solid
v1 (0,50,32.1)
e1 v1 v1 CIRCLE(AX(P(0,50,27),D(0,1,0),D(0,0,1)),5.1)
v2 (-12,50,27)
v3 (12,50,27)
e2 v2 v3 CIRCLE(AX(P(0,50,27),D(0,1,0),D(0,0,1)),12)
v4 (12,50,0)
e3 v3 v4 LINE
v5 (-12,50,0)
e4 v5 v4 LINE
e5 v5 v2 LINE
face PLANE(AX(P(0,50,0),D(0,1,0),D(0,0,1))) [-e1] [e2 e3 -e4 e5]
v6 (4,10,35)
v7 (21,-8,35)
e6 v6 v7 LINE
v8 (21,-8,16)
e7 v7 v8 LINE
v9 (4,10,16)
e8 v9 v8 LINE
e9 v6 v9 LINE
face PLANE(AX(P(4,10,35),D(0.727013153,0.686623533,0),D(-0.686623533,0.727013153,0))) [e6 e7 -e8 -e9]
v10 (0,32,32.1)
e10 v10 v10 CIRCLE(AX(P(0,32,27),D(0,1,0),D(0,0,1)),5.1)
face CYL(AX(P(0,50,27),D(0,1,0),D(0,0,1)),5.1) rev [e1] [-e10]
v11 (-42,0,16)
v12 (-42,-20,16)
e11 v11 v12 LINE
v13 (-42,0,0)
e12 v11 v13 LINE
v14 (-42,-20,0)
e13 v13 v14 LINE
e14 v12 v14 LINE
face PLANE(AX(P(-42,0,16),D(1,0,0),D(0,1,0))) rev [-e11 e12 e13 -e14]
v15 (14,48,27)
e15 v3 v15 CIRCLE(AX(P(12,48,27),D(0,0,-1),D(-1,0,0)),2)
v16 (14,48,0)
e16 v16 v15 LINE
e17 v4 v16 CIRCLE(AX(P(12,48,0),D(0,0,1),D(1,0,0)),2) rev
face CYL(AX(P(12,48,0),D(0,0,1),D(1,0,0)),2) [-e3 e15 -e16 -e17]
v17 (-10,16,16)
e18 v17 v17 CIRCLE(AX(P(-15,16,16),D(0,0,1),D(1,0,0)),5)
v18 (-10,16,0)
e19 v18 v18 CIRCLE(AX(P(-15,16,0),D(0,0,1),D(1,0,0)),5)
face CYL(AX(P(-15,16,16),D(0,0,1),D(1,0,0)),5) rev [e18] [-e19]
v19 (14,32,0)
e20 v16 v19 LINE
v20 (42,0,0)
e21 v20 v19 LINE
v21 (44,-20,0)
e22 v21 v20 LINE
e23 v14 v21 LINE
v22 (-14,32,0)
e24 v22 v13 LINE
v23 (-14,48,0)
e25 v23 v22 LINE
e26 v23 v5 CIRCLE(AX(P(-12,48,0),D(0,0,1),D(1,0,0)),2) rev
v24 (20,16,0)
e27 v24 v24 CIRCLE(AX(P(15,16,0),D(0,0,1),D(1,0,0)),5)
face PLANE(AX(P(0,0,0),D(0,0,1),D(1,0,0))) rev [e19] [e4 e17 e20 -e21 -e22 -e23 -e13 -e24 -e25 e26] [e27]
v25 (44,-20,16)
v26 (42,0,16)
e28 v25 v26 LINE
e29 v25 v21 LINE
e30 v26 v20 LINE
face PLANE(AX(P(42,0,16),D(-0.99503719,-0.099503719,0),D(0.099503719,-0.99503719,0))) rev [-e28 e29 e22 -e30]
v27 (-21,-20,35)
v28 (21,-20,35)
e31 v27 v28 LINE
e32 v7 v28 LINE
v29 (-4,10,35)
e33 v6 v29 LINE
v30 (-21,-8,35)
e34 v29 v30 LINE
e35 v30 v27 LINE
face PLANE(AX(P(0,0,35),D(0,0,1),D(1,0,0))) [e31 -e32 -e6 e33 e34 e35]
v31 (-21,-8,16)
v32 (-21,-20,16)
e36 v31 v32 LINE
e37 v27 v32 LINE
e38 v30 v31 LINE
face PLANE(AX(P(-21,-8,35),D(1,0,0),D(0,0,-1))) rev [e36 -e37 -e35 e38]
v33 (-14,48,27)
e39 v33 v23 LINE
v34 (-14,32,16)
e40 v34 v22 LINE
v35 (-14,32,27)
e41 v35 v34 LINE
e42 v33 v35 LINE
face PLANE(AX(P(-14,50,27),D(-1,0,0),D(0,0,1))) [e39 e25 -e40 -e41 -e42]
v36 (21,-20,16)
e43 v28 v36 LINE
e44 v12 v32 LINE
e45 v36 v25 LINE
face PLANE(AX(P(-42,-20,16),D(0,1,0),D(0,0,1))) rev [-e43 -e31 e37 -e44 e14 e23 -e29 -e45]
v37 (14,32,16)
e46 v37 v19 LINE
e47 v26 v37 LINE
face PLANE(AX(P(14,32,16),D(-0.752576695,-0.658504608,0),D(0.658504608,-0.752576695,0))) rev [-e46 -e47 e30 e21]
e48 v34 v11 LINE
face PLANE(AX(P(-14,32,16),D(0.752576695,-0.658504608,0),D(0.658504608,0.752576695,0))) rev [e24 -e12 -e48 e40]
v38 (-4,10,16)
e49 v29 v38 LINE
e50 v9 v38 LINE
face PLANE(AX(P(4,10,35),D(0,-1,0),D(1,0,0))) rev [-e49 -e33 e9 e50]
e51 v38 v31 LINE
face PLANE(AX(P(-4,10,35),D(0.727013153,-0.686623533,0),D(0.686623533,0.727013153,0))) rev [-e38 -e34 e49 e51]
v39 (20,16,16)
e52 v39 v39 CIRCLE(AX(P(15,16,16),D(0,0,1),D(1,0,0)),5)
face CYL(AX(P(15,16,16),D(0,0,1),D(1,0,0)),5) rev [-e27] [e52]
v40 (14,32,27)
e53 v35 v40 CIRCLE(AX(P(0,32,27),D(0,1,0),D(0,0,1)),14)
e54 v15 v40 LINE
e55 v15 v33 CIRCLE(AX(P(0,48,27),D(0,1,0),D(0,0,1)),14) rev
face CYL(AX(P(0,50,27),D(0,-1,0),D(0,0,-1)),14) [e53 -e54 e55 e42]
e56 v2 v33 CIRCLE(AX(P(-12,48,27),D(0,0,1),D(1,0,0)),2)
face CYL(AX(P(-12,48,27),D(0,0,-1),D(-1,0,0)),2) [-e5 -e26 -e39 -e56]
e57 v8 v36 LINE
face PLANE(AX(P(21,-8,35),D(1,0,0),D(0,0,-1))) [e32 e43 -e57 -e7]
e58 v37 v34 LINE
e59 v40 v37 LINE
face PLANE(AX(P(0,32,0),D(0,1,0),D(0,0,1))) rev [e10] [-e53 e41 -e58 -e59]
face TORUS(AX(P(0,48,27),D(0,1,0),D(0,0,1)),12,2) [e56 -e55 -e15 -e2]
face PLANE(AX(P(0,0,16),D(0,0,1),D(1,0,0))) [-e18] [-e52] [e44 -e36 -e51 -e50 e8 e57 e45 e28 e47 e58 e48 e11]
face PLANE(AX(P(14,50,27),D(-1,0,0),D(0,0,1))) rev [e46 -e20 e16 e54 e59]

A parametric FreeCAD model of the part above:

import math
import FreeCAD as App
import Part
import Sketcher

V = App.Vector
Q = App.Units.Quantity


def edges_at(feature, points):
    """Names of the edges that pass closest to the given points."""
    edges = feature.Shape.Edges
    near = lambda p: min(range(len(edges)), key=lambda i: edges[i].distToShape(Part.Vertex(*p))[0])
    return sorted({f"Edge{near(p) + 1}" for p in points})


def add_polygon(sketch, points):
    """Adds a closed chain of lines whose ends are joined by coincident constraints."""
    first, n = sketch.GeometryCount, len(points)
    for a, b in zip(points, points[1:] + points[:1]):
        sketch.addGeometry(Part.LineSegment(App.Vector(*a, 0), App.Vector(*b, 0)), False)
    for i in range(n):
        sketch.addConstraint(Sketcher.Constraint("Coincident", first + i, 2, first + (i + 1) % n, 1))

doc = App.newDocument("Part")
params = doc.addObject("Spreadsheet::Sheet", "Params")
for row, (alias, value) in enumerate([
    ("sketch1_width", "28 mm"),
    ("sketch1_width2", "86 mm"),
    ("sketch1_height", "20 mm"),
    ("pad1_length", "16 mm"),
    ("sketch2_width", "8 mm"),
    ("sketch2_width2", "42 mm"),
    ("sketch2_height", "12 mm"),
    ("pad2_length", "19 mm"),
    ("sketch3_radius", "14 mm"),
    ("sketch3_height", "27 mm"),
    ("pad3_length", "18 mm"),
    ("fillet_radius", "2 mm"),
    ("sketch4_diameter", "10.2 mm"),
    ("hole_diameter", "10.2 mm"),
    ("hole_depth", "18 mm"),
    ("sketch5_diameter", "10 mm"),
    ("hole2_diameter", "10 mm"),
], start=1):
    params.set(f"A{row}", alias)
    params.set(f"B{row}", "=" + value)
    params.setAlias(f"B{row}", alias)

body = doc.addObject("PartDesign::Body", "Body")

sketch1 = doc.addObject("Sketcher::SketchObject", "Sketch")
body.addObject(sketch1)
sketch1.AttachmentSupport = (doc.XY_Plane, [""])
sketch1.MapMode = "FlatFace"
add_polygon(sketch1, [(14, 32), (-14, 32), (-42, 0), (-42, -20), (44, -20), (42, 0)])
sketch1.addConstraint([
    Sketcher.Constraint("Horizontal", 0),
    Sketcher.Constraint("Vertical", 2),
    Sketcher.Constraint("Horizontal", 3),
    Sketcher.Constraint("Symmetric", 1, 2, 4, 2, -1, 1),
    Sketcher.Constraint("PointOnObject", 1, 2, -1),
    Sketcher.Constraint("Equal", 1, 5),
    Sketcher.Constraint("DistanceX", 0, 2, 0, 1, Q("28 mm")),
    Sketcher.Constraint("DistanceX", 3, 1, 3, 2, Q("86 mm")),
    Sketcher.Constraint("DistanceY", 2, 2, 2, 1, Q("20 mm")),
    Sketcher.Constraint("DistanceY", -1, 1, 0, 2, Q("32 mm")),
    Sketcher.Constraint("DistanceX", 1, 2, -1, 1, Q("42 mm")),
])
sketch1.setExpression("Constraints[12]", "Params.sketch1_width")
sketch1.setExpression("Constraints[13]", "Params.sketch1_width2")
sketch1.setExpression("Constraints[14]", "Params.sketch1_height")
pad1 = doc.addObject("PartDesign::Pad", "Pad")
body.addObject(pad1)
pad1.Profile = sketch1
pad1.setExpression("Length", "Params.pad1_length")

sketch2 = doc.addObject("Sketcher::SketchObject", "Sketch001")
body.addObject(sketch2)
sketch2.AttachmentSupport = (doc.XY_Plane, [""])
sketch2.MapMode = "FlatFace"
sketch2.AttachmentOffset = App.Placement(V(0, 0, 16), App.Rotation())
add_polygon(sketch2, [(4, 10), (-4, 10), (-21, -8), (-21, -20), (21, -20), (21, -8)])
sketch2.addConstraint([
    Sketcher.Constraint("Horizontal", 0),
    Sketcher.Constraint("Vertical", 2),
    Sketcher.Constraint("Horizontal", 3),
    Sketcher.Constraint("Vertical", 4),
    Sketcher.Constraint("Symmetric", 1, 2, 4, 2, -2),
    Sketcher.Constraint("Equal", 1, 5),
    Sketcher.Constraint("DistanceX", 0, 2, 0, 1, Q("8 mm")),
    Sketcher.Constraint("DistanceX", 3, 1, 3, 2, Q("42 mm")),
    Sketcher.Constraint("DistanceY", 2, 2, 2, 1, Q("12 mm")),
    Sketcher.Constraint("DistanceY", -1, 1, 0, 2, Q("10 mm")),
    Sketcher.Constraint("DistanceY", 1, 2, -1, 1, Q("8 mm")),
])
sketch2.setExpression("Constraints[12]", "Params.sketch2_width")
sketch2.setExpression("Constraints[13]", "Params.sketch2_width2")
sketch2.setExpression("Constraints[14]", "Params.sketch2_height")
pad2 = doc.addObject("PartDesign::Pad", "Pad001")
body.addObject(pad2)
pad2.Profile = sketch2
pad2.setExpression("Length", "Params.pad2_length")

sketch3 = doc.addObject("Sketcher::SketchObject", "Sketch002")
body.addObject(sketch3)
sketch3.AttachmentSupport = (doc.XZ_Plane, [""])
sketch3.MapMode = "FlatFace"
sketch3.AttachmentOffset = App.Placement(V(0, 0, -32), App.Rotation())
sketch3.addGeometry([
    Part.LineSegment(V(-14, 0, 0), V(-14, 27, 0)),
    Part.ArcOfCircle(Part.Circle(V(0, 27, 0), V(0, 0, 1), 14), math.radians(0), math.radians(180)),
    Part.LineSegment(V(14, 27, 0), V(14, 0, 0)),
    Part.LineSegment(V(14, 0, 0), V(-14, 0, 0)),
], False)
sketch3.addConstraint([
    Sketcher.Constraint("Tangent", 0, 2, 1, 2),
    Sketcher.Constraint("Tangent", 1, 1, 2, 1),
    Sketcher.Constraint("Coincident", 2, 2, 3, 1),
    Sketcher.Constraint("Coincident", 3, 2, 0, 1),
    Sketcher.Constraint("Vertical", 0),
    Sketcher.Constraint("Vertical", 2),
    Sketcher.Constraint("Horizontal", 3),
    Sketcher.Constraint("Symmetric", 2, 2, 3, 2, -1, 1),
    Sketcher.Constraint("Radius", 1, Q("14 mm")),
    Sketcher.Constraint("DistanceY", 0, 1, 0, 2, Q("27 mm")),
])
sketch3.setExpression("Constraints[8]", "Params.sketch3_radius")
sketch3.setExpression("Constraints[9]", "Params.sketch3_height")
pad3 = doc.addObject("PartDesign::Pad", "Pad002")
body.addObject(pad3)
pad3.Profile = sketch3
pad3.setExpression("Length", "Params.pad3_length")
pad3.Reversed = True
doc.recompute()

fillet = doc.addObject("PartDesign::Fillet", "Fillet")
body.addObject(fillet)
fillet.Base = (pad3, edges_at(pad3, [(0, 50, 41), (14, 50, 13.5), (-14, 50, 13.5)]))
fillet.setExpression("Radius", "Params.fillet_radius")

sketch4 = doc.addObject("Sketcher::SketchObject", "Sketch003")
body.addObject(sketch4)
sketch4.AttachmentSupport = (doc.XZ_Plane, [""])
sketch4.MapMode = "FlatFace"
sketch4.AttachmentOffset = App.Placement(V(0, 0, -50), App.Rotation())
sketch4.addGeometry(Part.Circle(V(0, 27, 0), V(0, 0, 1), 5), False)
sketch4.addConstraint([
    Sketcher.Constraint("PointOnObject", 0, 3, -2),
    Sketcher.Constraint("Diameter", 0, Q("10.2 mm")),
    Sketcher.Constraint("DistanceY", -1, 1, 0, 3, Q("27 mm")),
])
sketch4.setExpression("Constraints[1]", "Params.sketch4_diameter")
doc.recompute()
hole = doc.addObject("PartDesign::Hole", "Hole")
body.addObject(hole)
hole.Profile = sketch4
hole.ThreadType = "None"
hole.setExpression("Diameter", "Params.hole_diameter")
hole.DepthType = "Dimension"
hole.setExpression("Depth", "Params.hole_depth")
hole.DrillPoint = "Flat"
hole.Reversed = True

sketch5 = doc.addObject("Sketcher::SketchObject", "Sketch004")
body.addObject(sketch5)
sketch5.AttachmentSupport = (doc.XY_Plane, [""])
sketch5.MapMode = "FlatFace"
sketch5.AttachmentOffset = App.Placement(V(0, 0, 16), App.Rotation())
sketch5.addGeometry([
    Part.Circle(V(-15, 16, 0), V(0, 0, 1), 5),
    Part.Circle(V(15, 16, 0), V(0, 0, 1), 5),
], False)
sketch5.addConstraint([
    Sketcher.Constraint("Equal", 0, 1),
    Sketcher.Constraint("Symmetric", 0, 3, 1, 3, -2),
    Sketcher.Constraint("Diameter", 0, Q("10 mm")),
    Sketcher.Constraint("DistanceX", 0, 3, -1, 1, Q("15 mm")),
    Sketcher.Constraint("DistanceY", -1, 1, 0, 3, Q("16 mm")),
])
sketch5.setExpression("Constraints[2]", "Params.sketch5_diameter")
doc.recompute()
hole2 = doc.addObject("PartDesign::Hole", "Hole001")
body.addObject(hole2)
hole2.Profile = sketch5
hole2.ThreadType = "None"
hole2.setExpression("Diameter", "Params.hole2_diameter")
hole2.DepthType = "ThroughAll"

doc.recompute()
